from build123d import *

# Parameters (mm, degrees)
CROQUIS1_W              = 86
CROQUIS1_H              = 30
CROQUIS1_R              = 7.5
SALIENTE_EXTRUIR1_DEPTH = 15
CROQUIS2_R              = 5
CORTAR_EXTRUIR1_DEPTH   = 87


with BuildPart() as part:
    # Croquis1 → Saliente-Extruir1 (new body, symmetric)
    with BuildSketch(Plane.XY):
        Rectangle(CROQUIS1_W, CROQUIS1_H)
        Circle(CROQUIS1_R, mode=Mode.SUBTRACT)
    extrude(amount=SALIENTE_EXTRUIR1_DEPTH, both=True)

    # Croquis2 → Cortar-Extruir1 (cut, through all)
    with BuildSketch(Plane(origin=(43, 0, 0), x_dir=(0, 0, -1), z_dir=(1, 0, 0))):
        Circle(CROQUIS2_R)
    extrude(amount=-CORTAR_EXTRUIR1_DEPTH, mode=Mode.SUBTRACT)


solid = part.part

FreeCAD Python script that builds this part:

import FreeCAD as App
import Part
import Sketcher

V = App.Vector
Q = App.Units.Quantity

doc = App.newDocument("Part")
body = doc.addObject("PartDesign::Body", "Body")

sketch1 = body.newObject("Sketcher::SketchObject", "Sketch")
sketch1.AttachmentSupport = (doc.getObject("XY_Plane"), [""])
sketch1.MapMode = "FlatFace"
sketch1.addGeometry(Part.LineSegment(V(-43, 15, 0), V(-43, -15, 0)), False)
sketch1.addGeometry(Part.LineSegment(V(-43, -15, 0), V(43, -15, 0)), False)
sketch1.addGeometry(Part.LineSegment(V(43, -15, 0), V(43, 15, 0)), False)
sketch1.addGeometry(Part.LineSegment(V(43, 15, 0), V(-43, 15, 0)), False)
sketch1.addGeometry(Part.Circle(V(0, 0, 0), V(0, 0, 1), 8), False)
sketch1.addConstraint(Sketcher.Constraint("Coincident", 0, 2, 1, 1))
sketch1.addConstraint(Sketcher.Constraint("Coincident", 1, 2, 2, 1))
sketch1.addConstraint(Sketcher.Constraint("Coincident", 2, 2, 3, 1))
sketch1.addConstraint(Sketcher.Constraint("Coincident", 3, 2, 0, 1))
sketch1.addConstraint(Sketcher.Constraint("Vertical", 0))
sketch1.addConstraint(Sketcher.Constraint("Horizontal", 1))
sketch1.addConstraint(Sketcher.Constraint("Vertical", 2))
sketch1.addConstraint(Sketcher.Constraint("Horizontal", 3))
sketch1.addConstraint(Sketcher.Constraint("Coincident", 4, 3, -1, 1))
sketch1.addConstraint(Sketcher.Constraint("Symmetric", 0, 2, 2, 2, -1, 1))
sketch1.addConstraint(Sketcher.Constraint("Diameter", 4, Q("15 mm")))
sketch1.addConstraint(Sketcher.Constraint("DistanceX", 1, 1, 1, 2, Q("86 mm")))
sketch1.addConstraint(Sketcher.Constraint("DistanceY", 0, 2, 0, 1, Q("30 mm")))
pad1 = body.newObject("PartDesign::Pad", "Pad")
pad1.Profile = sketch1
pad1.Length = 30
pad1.Midplane = True

sketch2 = body.newObject("Sketcher::SketchObject", "Sketch001")
sketch2.AttachmentSupport = (doc.getObject("YZ_Plane"), [""])
sketch2.MapMode = "FlatFace"
sketch2.AttachmentOffset = App.Placement(V(0, 0, 43), App.Rotation())
sketch2.addGeometry(Part.Circle(V(0, 0, 0), V(0, 0, 1), 5), False)
sketch2.addConstraint(Sketcher.Constraint("Coincident", 0, 3, -1, 1))
sketch2.addConstraint(Sketcher.Constraint("Diameter", 0, Q("10 mm")))
pocket1 = body.newObject("PartDesign::Pocket", "Pocket")
pocket1.Profile = sketch2
pocket1.Type = "ThroughAll"

doc.recompute()
